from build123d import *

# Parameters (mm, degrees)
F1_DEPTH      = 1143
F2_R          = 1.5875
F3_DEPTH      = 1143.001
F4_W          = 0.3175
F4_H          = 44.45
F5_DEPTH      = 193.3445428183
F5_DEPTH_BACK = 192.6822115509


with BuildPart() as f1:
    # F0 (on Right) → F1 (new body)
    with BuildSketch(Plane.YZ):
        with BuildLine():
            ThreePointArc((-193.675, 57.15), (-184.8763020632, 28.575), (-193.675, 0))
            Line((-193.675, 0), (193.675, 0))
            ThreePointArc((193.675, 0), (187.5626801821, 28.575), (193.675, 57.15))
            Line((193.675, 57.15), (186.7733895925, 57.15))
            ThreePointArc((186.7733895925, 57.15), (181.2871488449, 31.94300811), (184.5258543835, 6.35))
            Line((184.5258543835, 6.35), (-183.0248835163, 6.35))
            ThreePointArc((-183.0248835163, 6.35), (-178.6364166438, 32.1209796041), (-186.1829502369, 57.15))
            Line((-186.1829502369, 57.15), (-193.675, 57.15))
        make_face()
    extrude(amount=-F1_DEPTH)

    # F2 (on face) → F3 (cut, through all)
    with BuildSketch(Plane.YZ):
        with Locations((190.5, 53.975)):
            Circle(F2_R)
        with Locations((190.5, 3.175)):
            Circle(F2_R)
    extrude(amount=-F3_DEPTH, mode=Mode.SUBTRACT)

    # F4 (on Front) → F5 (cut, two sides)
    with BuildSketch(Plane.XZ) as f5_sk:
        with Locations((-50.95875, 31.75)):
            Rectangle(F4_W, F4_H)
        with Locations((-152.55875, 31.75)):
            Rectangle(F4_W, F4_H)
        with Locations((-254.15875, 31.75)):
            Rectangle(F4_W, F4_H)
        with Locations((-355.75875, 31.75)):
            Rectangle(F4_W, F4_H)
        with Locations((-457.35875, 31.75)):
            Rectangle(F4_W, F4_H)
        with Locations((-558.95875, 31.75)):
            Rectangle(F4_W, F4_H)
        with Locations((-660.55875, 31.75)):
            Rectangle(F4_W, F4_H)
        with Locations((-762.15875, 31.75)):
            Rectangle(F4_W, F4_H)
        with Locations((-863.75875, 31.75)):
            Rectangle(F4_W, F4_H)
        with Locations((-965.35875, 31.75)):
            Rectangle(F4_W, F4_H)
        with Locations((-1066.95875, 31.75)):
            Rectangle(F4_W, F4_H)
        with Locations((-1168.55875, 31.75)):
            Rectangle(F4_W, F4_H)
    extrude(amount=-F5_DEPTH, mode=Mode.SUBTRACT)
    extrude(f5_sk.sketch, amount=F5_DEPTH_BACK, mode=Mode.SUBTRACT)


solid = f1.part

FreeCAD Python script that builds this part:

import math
import FreeCAD as App
import Part
import Sketcher
Q = App.Units.Quantity

doc = App.newDocument("Part")
body = doc.addObject("PartDesign::Body", "Body")

# Sketch on YZ plane
sketch1 = body.newObject("Sketcher::SketchObject", "Sketch")
sketch1.AttachmentSupport = (doc.getObject("YZ_Plane"), [""])
sketch1.MapMode = "FlatFace"
sketch1.addGeometry(Part.ArcOfCircle(Part.Circle(App.Vector(-235.676302, 28.575, 0), App.Vector(0, 0, 1), 50.8), math.radians(-34.228866), math.radians(34.228866)), False)
sketch1.addGeometry(Part.LineSegment(App.Vector(-193.675, 0, 0), App.Vector(193.675, 0, 0)), False)
sketch1.addGeometry(Part.ArcOfCircle(Part.Circle(App.Vector(257.41268, 28.575, 0), App.Vector(0, 0, 1), 69.85), math.radians(155.85226), math.radians(204.14774)), False)
sketch1.addGeometry(Part.LineSegment(App.Vector(193.675, 57.15, 0), App.Vector(186.77339, 57.15, 0)), False)
sketch1.addGeometry(Part.ArcOfCircle(Part.Circle(App.Vector(257.41268, 28.575, 0), App.Vector(0, 0, 1), 76.2), math.radians(157.975687), math.radians(196.957763)), False)
sketch1.addGeometry(Part.LineSegment(App.Vector(184.525854, 6.35, 0), App.Vector(-183.024884, 6.35, 0)), False)
sketch1.addGeometry(Part.ArcOfCircle(Part.Circle(App.Vector(-235.676302, 28.575, 0), App.Vector(0, 0, 1), 57.15), math.radians(-22.88538), math.radians(30)), False)
sketch1.addGeometry(Part.LineSegment(App.Vector(-186.18295, 57.15, 0), App.Vector(-193.675, 57.15, 0)), False)
sketch1.addConstraint(Sketcher.Constraint("Coincident", 0, 1, 1, 1))
sketch1.addConstraint(Sketcher.Constraint("Coincident", 1, 2, 2, 2))
sketch1.addConstraint(Sketcher.Constraint("Coincident", 2, 1, 3, 1))
sketch1.addConstraint(Sketcher.Constraint("Coincident", 3, 2, 4, 1))
sketch1.addConstraint(Sketcher.Constraint("Coincident", 4, 2, 5, 1))
sketch1.addConstraint(Sketcher.Constraint("Coincident", 5, 2, 6, 1))
sketch1.addConstraint(Sketcher.Constraint("Coincident", 6, 2, 7, 1))
sketch1.addConstraint(Sketcher.Constraint("Coincident", 7, 2, 0, 2))
sketch1.addConstraint(Sketcher.Constraint("Horizontal", 1))
sketch1.addConstraint(Sketcher.Constraint("Horizontal", 3))
sketch1.addConstraint(Sketcher.Constraint("Horizontal", 5))
sketch1.addConstraint(Sketcher.Constraint("Horizontal", 7))
sketch1.addConstraint(Sketcher.Constraint("Coincident", 4, 3, 2, 3))
sketch1.addConstraint(Sketcher.Constraint("Coincident", 6, 3, 0, 3))
sketch1.addConstraint(Sketcher.Constraint("Symmetric", 0, 1, 1, 2, -1, 1))
sketch1.addConstraint(Sketcher.Constraint("Symmetric", 2, 1, 7, 2, -2))
sketch1.addConstraint(Sketcher.Constraint("Horizontal", 0, 3, 2, 3))
sketch1.addConstraint(Sketcher.Constraint("Radius", 0, Q("2 in")))
sketch1.addConstraint(Sketcher.Constraint("Radius", 4, Q("3 in")))
sketch1.addConstraint(Sketcher.Constraint("Radius", 2, Q("2.75 in")))
sketch1.addConstraint(Sketcher.Constraint("Radius", 6, Q("2.25 in")))
sketch1.addConstraint(Sketcher.Constraint("DistanceY", 4, 2, 3, 2, Q("2 in")))
sketch1.addConstraint(Sketcher.Constraint("DistanceX", 1, 1, 1, 2, Q("15.25 in")))
sketch1.addConstraint(Sketcher.Constraint("DistanceY", -1, 1, 2, 1, Q("2.25 in")))
pad1 = body.newObject("PartDesign::Pad", "Pad")
pad1.Profile = sketch1
pad1.Length = Q("45 in")
pad1.Reversed = True

# Sketch on YZ plane
sketch2 = body.newObject("Sketcher::SketchObject", "Sketch001")
sketch2.AttachmentSupport = (doc.getObject("YZ_Plane"), [""])
sketch2.MapMode = "FlatFace"
sketch2.addGeometry(Part.Circle(App.Vector(190.5, 53.975, 0), App.Vector(0, 0, 1), 1.5875), False)
sketch2.addGeometry(Part.Circle(App.Vector(190.5, 3.175, 0), App.Vector(0, 0, 1), 1.5875), False)
sketch2.addConstraint(Sketcher.Constraint("Equal", 0, 1))
sketch2.addConstraint(Sketcher.Constraint("Vertical", 0, 3, 1, 3))
sketch2.addConstraint(Sketcher.Constraint("Diameter", 0, Q("0.125 in")))
sketch2.addConstraint(Sketcher.Constraint("DistanceY", 1, 3, 0, 3, Q("2 in")))
sketch2.addConstraint(Sketcher.Constraint("DistanceX", -1, 1, 0, 3, Q("7.5 in")))
sketch2.addConstraint(Sketcher.Constraint("DistanceY", -1, 1, 0, 3, Q("2.125 in")))
pocket1 = body.newObject("PartDesign::Pocket", "Pocket")
pocket1.Profile = sketch2
pocket1.Type = "ThroughAll"

# Sketch on XZ plane
sketch3 = body.newObject("Sketcher::SketchObject", "Sketch002")
sketch3.AttachmentSupport = (doc.getObject("XZ_Plane"), [""])
sketch3.MapMode = "FlatFace"
sketch3.addGeometry(Part.LineSegment(App.Vector(-51.1175, 53.975, 0), App.Vector(-51.1175, 9.525, 0)), False)
sketch3.addGeometry(Part.LineSegment(App.Vector(-51.1175, 9.525, 0), App.Vector(-50.8, 9.525, 0)), False)
sketch3.addGeometry(Part.LineSegment(App.Vector(-50.8, 9.525, 0), App.Vector(-50.8, 53.975, 0)), False)
sketch3.addGeometry(Part.LineSegment(App.Vector(-50.8, 53.975, 0), App.Vector(-51.1175, 53.975, 0)), False)
sketch3.addGeometry(Part.LineSegment(App.Vector(-152.7175, 53.975, 0), App.Vector(-152.7175, 9.525, 0)), False)
sketch3.addGeometry(Part.LineSegment(App.Vector(-152.7175, 9.525, 0), App.Vector(-152.4, 9.525, 0)), False)
sketch3.addGeometry(Part.LineSegment(App.Vector(-152.4, 9.525, 0), App.Vector(-152.4, 53.975, 0)), False)
sketch3.addGeometry(Part.LineSegment(App.Vector(-152.4, 53.975, 0), App.Vector(-152.7175, 53.975, 0)), False)
sketch3.addGeometry(Part.LineSegment(App.Vector(-254.3175, 53.975, 0), App.Vector(-254.3175, 9.525, 0)), False)
sketch3.addGeometry(Part.LineSegment(App.Vector(-254.3175, 9.525, 0), App.Vector(-254, 9.525, 0)), False)
sketch3.addGeometry(Part.LineSegment(App.Vector(-254, 9.525, 0), App.Vector(-254, 53.975, 0)), False)
sketch3.addGeometry(Part.LineSegment(App.Vector(-254, 53.975, 0), App.Vector(-254.3175, 53.975, 0)), False)
sketch3.addGeometry(Part.LineSegment(App.Vector(-355.9175, 53.975, 0), App.Vector(-355.9175, 9.525, 0)), False)
sketch3.addGeometry(Part.LineSegment(App.Vector(-355.9175, 9.525, 0), App.Vector(-355.6, 9.525, 0)), False)
sketch3.addGeometry(Part.LineSegment(App.Vector(-355.6, 9.525, 0), App.Vector(-355.6, 53.975, 0)), False)
sketch3.addGeometry(Part.LineSegment(App.Vector(-355.6, 53.975, 0), App.Vector(-355.9175, 53.975, 0)), False)
sketch3.addGeometry(Part.LineSegment(App.Vector(-457.5175, 53.975, 0), App.Vector(-457.5175, 9.525, 0)), False)
sketch3.addGeometry(Part.LineSegment(App.Vector(-457.5175, 9.525, 0), App.Vector(-457.2, 9.525, 0)), False)
sketch3.addGeometry(Part.LineSegment(App.Vector(-457.2, 9.525, 0), App.Vector(-457.2, 53.975, 0)), False)
sketch3.addGeometry(Part.LineSegment(App.Vector(-457.2, 53.975, 0), App.Vector(-457.5175, 53.975, 0)), False)
sketch3.addGeometry(Part.LineSegment(App.Vector(-559.1175, 53.975, 0), App.Vector(-559.1175, 9.525, 0)), False)
sketch3.addGeometry(Part.LineSegment(App.Vector(-559.1175, 9.525, 0), App.Vector(-558.8, 9.525, 0)), False)
sketch3.addGeometry(Part.LineSegment(App.Vector(-558.8, 9.525, 0), App.Vector(-558.8, 53.975, 0)), False)
sketch3.addGeometry(Part.LineSegment(App.Vector(-558.8, 53.975, 0), App.Vector(-559.1175, 53.975, 0)), False)
sketch3.addGeometry(Part.LineSegment(App.Vector(-660.7175, 53.975, 0), App.Vector(-660.7175, 9.525, 0)), False)
sketch3.addGeometry(Part.LineSegment(App.Vector(-660.7175, 9.525, 0), App.Vector(-660.4, 9.525, 0)), False)
sketch3.addGeometry(Part.LineSegment(App.Vector(-660.4, 9.525, 0), App.Vector(-660.4, 53.975, 0)), False)
sketch3.addGeometry(Part.LineSegment(App.Vector(-660.4, 53.975, 0), App.Vector(-660.7175, 53.975, 0)), False)
sketch3.addGeometry(Part.LineSegment(App.Vector(-762.3175, 53.975, 0), App.Vector(-762.3175, 9.525, 0)), False)
sketch3.addGeometry(Part.LineSegment(App.Vector(-762.3175, 9.525, 0), App.Vector(-762, 9.525, 0)), False)
sketch3.addGeometry(Part.LineSegment(App.Vector(-762, 9.525, 0), App.Vector(-762, 53.975, 0)), False)
sketch3.addGeometry(Part.LineSegment(App.Vector(-762, 53.975, 0), App.Vector(-762.3175, 53.975, 0)), False)
sketch3.addGeometry(Part.LineSegment(App.Vector(-863.9175, 53.975, 0), App.Vector(-863.9175, 9.525, 0)), False)
sketch3.addGeometry(Part.LineSegment(App.Vector(-863.9175, 9.525, 0), App.Vector(-863.6, 9.525, 0)), False)
sketch3.addGeometry(Part.LineSegment(App.Vector(-863.6, 9.525, 0), App.Vector(-863.6, 53.975, 0)), False)
sketch3.addGeometry(Part.LineSegment(App.Vector(-863.6, 53.975, 0), App.Vector(-863.9175, 53.975, 0)), False)
sketch3.addGeometry(Part.LineSegment(App.Vector(-965.5175, 53.975, 0), App.Vector(-965.5175, 9.525, 0)), False)
sketch3.addGeometry(Part.LineSegment(App.Vector(-965.5175, 9.525, 0), App.Vector(-965.2, 9.525, 0)), False)
sketch3.addGeometry(Part.LineSegment(App.Vector(-965.2, 9.525, 0), App.Vector(-965.2, 53.975, 0)), False)
sketch3.addGeometry(Part.LineSegment(App.Vector(-965.2, 53.975, 0), App.Vector(-965.5175, 53.975, 0)), False)
sketch3.addGeometry(Part.LineSegment(App.Vector(-1067.1175, 53.975, 0), App.Vector(-1067.1175, 9.525, 0)), False)
sketch3.addGeometry(Part.LineSegment(App.Vector(-1067.1175, 9.525, 0), App.Vector(-1066.8, 9.525, 0)), False)
sketch3.addGeometry(Part.LineSegment(App.Vector(-1066.8, 9.525, 0), App.Vector(-1066.8, 53.975, 0)), False)
sketch3.addGeometry(Part.LineSegment(App.Vector(-1066.8, 53.975, 0), App.Vector(-1067.1175, 53.975, 0)), False)
sketch3.addGeometry(Part.LineSegment(App.Vector(-1168.7175, 53.975, 0), App.Vector(-1168.7175, 9.525, 0)), False)
sketch3.addGeometry(Part.LineSegment(App.Vector(-1168.7175, 9.525, 0), App.Vector(-1168.4, 9.525, 0)), False)
sketch3.addGeometry(Part.LineSegment(App.Vector(-1168.4, 9.525, 0), App.Vector(-1168.4, 53.975, 0)), False)
sketch3.addGeometry(Part.LineSegment(App.Vector(-1168.4, 53.975, 0), App.Vector(-1168.7175, 53.975, 0)), False)
sketch3.addConstraint(Sketcher.Constraint("Coincident", 0, 2, 1, 1))
sketch3.addConstraint(Sketcher.Constraint("Coincident", 1, 2, 2, 1))
sketch3.addConstraint(Sketcher.Constraint("Coincident", 2, 2, 3, 1))
sketch3.addConstraint(Sketcher.Constraint("Coincident", 3, 2, 0, 1))
sketch3.addConstraint(Sketcher.Constraint("Coincident", 4, 2, 5, 1))
sketch3.addConstraint(Sketcher.Constraint("Coincident", 5, 2, 6, 1))
sketch3.addConstraint(Sketcher.Constraint("Coincident", 6, 2, 7, 1))
sketch3.addConstraint(Sketcher.Constraint("Coincident", 7, 2, 4, 1))
sketch3.addConstraint(Sketcher.Constraint("Coincident", 8, 2, 9, 1))
sketch3.addConstraint(Sketcher.Constraint("Coincident", 9, 2, 10, 1))
sketch3.addConstraint(Sketcher.Constraint("Coincident", 10, 2, 11, 1))
sketch3.addConstraint(Sketcher.Constraint("Coincident", 11, 2, 8, 1))
sketch3.addConstraint(Sketcher.Constraint("Coincident", 12, 2, 13, 1))
sketch3.addConstraint(Sketcher.Constraint("Coincident", 13, 2, 14, 1))
sketch3.addConstraint(Sketcher.Constraint("Coincident", 14, 2, 15, 1))
sketch3.addConstraint(Sketcher.Constraint("Coincident", 15, 2, 12, 1))
sketch3.addConstraint(Sketcher.Constraint("Coincident", 16, 2, 17, 1))
sketch3.addConstraint(Sketcher.Constraint("Coincident", 17, 2, 18, 1))
sketch3.addConstraint(Sketcher.Constraint("Coincident", 18, 2, 19, 1))
sketch3.addConstraint(Sketcher.Constraint("Coincident", 19, 2, 16, 1))
sketch3.addConstraint(Sketcher.Constraint("Coincident", 20, 2, 21, 1))
sketch3.addConstraint(Sketcher.Constraint("Coincident", 21, 2, 22, 1))
sketch3.addConstraint(Sketcher.Constraint("Coincident", 22, 2, 23, 1))
sketch3.addConstraint(Sketcher.Constraint("Coincident", 23, 2, 20, 1))
sketch3.addConstraint(Sketcher.Constraint("Coincident", 24, 2, 25, 1))
sketch3.addConstraint(Sketcher.Constraint("Coincident", 25, 2, 26, 1))
sketch3.addConstraint(Sketcher.Constraint("Coincident", 26, 2, 27, 1))
sketch3.addConstraint(Sketcher.Constraint("Coincident", 27, 2, 24, 1))
sketch3.addConstraint(Sketcher.Constraint("Coincident", 28, 2, 29, 1))
sketch3.addConstraint(Sketcher.Constraint("Coincident", 29, 2, 30, 1))
sketch3.addConstraint(Sketcher.Constraint("Coincident", 30, 2, 31, 1))
sketch3.addConstraint(Sketcher.Constraint("Coincident", 31, 2, 28, 1))
sketch3.addConstraint(Sketcher.Constraint("Coincident", 32, 2, 33, 1))
sketch3.addConstraint(Sketcher.Constraint("Coincident", 33, 2, 34, 1))
sketch3.addConstraint(Sketcher.Constraint("Coincident", 34, 2, 35, 1))
sketch3.addConstraint(Sketcher.Constraint("Coincident", 35, 2, 32, 1))
sketch3.addConstraint(Sketcher.Constraint("Coincident", 36, 2, 37, 1))
sketch3.addConstraint(Sketcher.Constraint("Coincident", 37, 2, 38, 1))
sketch3.addConstraint(Sketcher.Constraint("Coincident", 38, 2, 39, 1))
sketch3.addConstraint(Sketcher.Constraint("Coincident", 39, 2, 36, 1))
sketch3.addConstraint(Sketcher.Constraint("Coincident", 40, 2, 41, 1))
sketch3.addConstraint(Sketcher.Constraint("Coincident", 41, 2, 42, 1))
sketch3.addConstraint(Sketcher.Constraint("Coincident", 42, 2, 43, 1))
sketch3.addConstraint(Sketcher.Constraint("Coincident", 43, 2, 40, 1))
sketch3.addConstraint(Sketcher.Constraint("Coincident", 44, 2, 45, 1))
sketch3.addConstraint(Sketcher.Constraint("Coincident", 45, 2, 46, 1))
sketch3.addConstraint(Sketcher.Constraint("Coincident", 46, 2, 47, 1))
sketch3.addConstraint(Sketcher.Constraint("Coincident", 47, 2, 44, 1))
sketch3.addConstraint(Sketcher.Constraint("Vertical", 0))
sketch3.addConstraint(Sketcher.Constraint("Horizontal", 1))
sketch3.addConstraint(Sketcher.Constraint("Vertical", 2))
sketch3.addConstraint(Sketcher.Constraint("Horizontal", 3))
sketch3.addConstraint(Sketcher.Constraint("Vertical", 4))
sketch3.addConstraint(Sketcher.Constraint("Horizontal", 5))
sketch3.addConstraint(Sketcher.Constraint("Vertical", 6))
sketch3.addConstraint(Sketcher.Constraint("Horizontal", 7))
sketch3.addConstraint(Sketcher.Constraint("Vertical", 8))
sketch3.addConstraint(Sketcher.Constraint("Horizontal", 9))
sketch3.addConstraint(Sketcher.Constraint("Vertical", 10))
sketch3.addConstraint(Sketcher.Constraint("Horizontal", 11))
sketch3.addConstraint(Sketcher.Constraint("Vertical", 12))
sketch3.addConstraint(Sketcher.Constraint("Horizontal", 13))
sketch3.addConstraint(Sketcher.Constraint("Vertical", 14))
sketch3.addConstraint(Sketcher.Constraint("Horizontal", 15))
sketch3.addConstraint(Sketcher.Constraint("Vertical", 16))
sketch3.addConstraint(Sketcher.Constraint("Horizontal", 17))
sketch3.addConstraint(Sketcher.Constraint("Vertical", 18))
sketch3.addConstraint(Sketcher.Constraint("Horizontal", 19))
sketch3.addConstraint(Sketcher.Constraint("Vertical", 20))
sketch3.addConstraint(Sketcher.Constraint("Horizontal", 21))
sketch3.addConstraint(Sketcher.Constraint("Vertical", 22))
sketch3.addConstraint(Sketcher.Constraint("Horizontal", 23))
sketch3.addConstraint(Sketcher.Constraint("Vertical", 24))
sketch3.addConstraint(Sketcher.Constraint("Horizontal", 25))
sketch3.addConstraint(Sketcher.Constraint("Vertical", 26))
sketch3.addConstraint(Sketcher.Constraint("Horizontal", 27))
sketch3.addConstraint(Sketcher.Constraint("Vertical", 28))
sketch3.addConstraint(Sketcher.Constraint("Horizontal", 29))
sketch3.addConstraint(Sketcher.Constraint("Vertical", 30))
sketch3.addConstraint(Sketcher.Constraint("Horizontal", 31))
sketch3.addConstraint(Sketcher.Constraint("Vertical", 32))
sketch3.addConstraint(Sketcher.Constraint("Horizontal", 33))
sketch3.addConstraint(Sketcher.Constraint("Vertical", 34))
sketch3.addConstraint(Sketcher.Constraint("Horizontal", 35))
sketch3.addConstraint(Sketcher.Constraint("Vertical", 36))
sketch3.addConstraint(Sketcher.Constraint("Horizontal", 37))
sketch3.addConstraint(Sketcher.Constraint("Vertical", 38))
sketch3.addConstraint(Sketcher.Constraint("Horizontal", 39))
sketch3.addConstraint(Sketcher.Constraint("Vertical", 40))
sketch3.addConstraint(Sketcher.Constraint("Horizontal", 41))
sketch3.addConstraint(Sketcher.Constraint("Vertical", 42))
sketch3.addConstraint(Sketcher.Constraint("Horizontal", 43))
sketch3.addConstraint(Sketcher.Constraint("Vertical", 44))
sketch3.addConstraint(Sketcher.Constraint("Horizontal", 45))
sketch3.addConstraint(Sketcher.Constraint("Vertical", 46))
sketch3.addConstraint(Sketcher.Constraint("Horizontal", 47))
sketch3.addConstraint(Sketcher.Constraint("Horizontal", 1, 2, 4, 2))
sketch3.addConstraint(Sketcher.Constraint("Horizontal", 3, 2, 6, 2))
sketch3.addConstraint(Sketcher.Constraint("Horizontal", 5, 2, 8, 2))
sketch3.addConstraint(Sketcher.Constraint("Horizontal", 7, 2, 10, 2))
sketch3.addConstraint(Sketcher.Constraint("Horizontal", 9, 2, 12, 2))
sketch3.addConstraint(Sketcher.Constraint("Horizontal", 11, 2, 14, 2))
sketch3.addConstraint(Sketcher.Constraint("Horizontal", 13, 2, 16, 2))
sketch3.addConstraint(Sketcher.Constraint("Horizontal", 15, 2, 18, 2))
sketch3.addConstraint(Sketcher.Constraint("Horizontal", 17, 2, 20, 2))
sketch3.addConstraint(Sketcher.Constraint("Horizontal", 19, 2, 22, 2))
sketch3.addConstraint(Sketcher.Constraint("Horizontal", 21, 2, 24, 2))
sketch3.addConstraint(Sketcher.Constraint("Horizontal", 23, 2, 26, 2))
sketch3.addConstraint(Sketcher.Constraint("Horizontal", 25, 2, 28, 2))
sketch3.addConstraint(Sketcher.Constraint("Horizontal", 27, 2, 30, 2))
sketch3.addConstraint(Sketcher.Constraint("Horizontal", 29, 2, 32, 2))
sketch3.addConstraint(Sketcher.Constraint("Horizontal", 31, 2, 34, 2))
sketch3.addConstraint(Sketcher.Constraint("Horizontal", 33, 2, 36, 2))
sketch3.addConstraint(Sketcher.Constraint("Horizontal", 35, 2, 38, 2))
sketch3.addConstraint(Sketcher.Constraint("Horizontal", 37, 2, 40, 2))
sketch3.addConstraint(Sketcher.Constraint("Horizontal", 39, 2, 42, 2))
sketch3.addConstraint(Sketcher.Constraint("Horizontal", 41, 2, 44, 2))
sketch3.addConstraint(Sketcher.Constraint("Horizontal", 43, 2, 46, 2))
sketch3.addConstraint(Sketcher.Constraint("Equal", 3, 5))
sketch3.addConstraint(Sketcher.Constraint("Equal", 7, 9))
sketch3.addConstraint(Sketcher.Constraint("Equal", 11, 13))
sketch3.addConstraint(Sketcher.Constraint("Equal", 15, 17))
sketch3.addConstraint(Sketcher.Constraint("Equal", 19, 21))
sketch3.addConstraint(Sketcher.Constraint("Equal", 23, 25))
sketch3.addConstraint(Sketcher.Constraint("Equal", 27, 29))
sketch3.addConstraint(Sketcher.Constraint("Equal", 31, 33))
sketch3.addConstraint(Sketcher.Constraint("Equal", 35, 37))
sketch3.addConstraint(Sketcher.Constraint("Equal", 39, 41))
sketch3.addConstraint(Sketcher.Constraint("Equal", 43, 45))
sketch3.addConstraint(Sketcher.Constraint("DistanceX", 1, 2, -1, 1, Q("2 in")))
sketch3.addConstraint(Sketcher.Constraint("DistanceX", 5, 2, -1, 1, Q("6 in")))
sketch3.addConstraint(Sketcher.Constraint("DistanceX", 9, 2, -1, 1, Q("10 in")))
sketch3.addConstraint(Sketcher.Constraint("DistanceX", 13, 2, -1, 1, Q("14 in")))
sketch3.addConstraint(Sketcher.Constraint("DistanceX", 17, 2, -1, 1, Q("18 in")))
sketch3.addConstraint(Sketcher.Constraint("DistanceX", 21, 2, -1, 1, Q("22 in")))
sketch3.addConstraint(Sketcher.Constraint("DistanceX", 25, 2, -1, 1, Q("26 in")))
sketch3.addConstraint(Sketcher.Constraint("DistanceX", 29, 2, -1, 1, Q("30 in")))
sketch3.addConstraint(Sketcher.Constraint("DistanceX", 33, 2, -1, 1, Q("34 in")))
sketch3.addConstraint(Sketcher.Constraint("DistanceX", 37, 2, -1, 1, Q("38 in")))
sketch3.addConstraint(Sketcher.Constraint("DistanceX", 41, 2, -1, 1, Q("42 in")))
sketch3.addConstraint(Sketcher.Constraint("DistanceX", 45, 2, -1, 1, Q("46 in")))
sketch3.addConstraint(Sketcher.Constraint("DistanceY", 0, 2, 0, 1, Q("1.75 in")))
sketch3.addConstraint(Sketcher.Constraint("DistanceX", 1, 1, 1, 2, Q("0.0125 in")))
sketch3.addConstraint(Sketcher.Constraint("DistanceY", -1, 1, 0, 2, Q("0.375 in")))
pocket2 = body.newObject("PartDesign::Pocket", "Pocket001")
pocket2.Profile = sketch3
pocket2.Type = "ThroughAll"
pocket2.Midplane = True

doc.recompute()
